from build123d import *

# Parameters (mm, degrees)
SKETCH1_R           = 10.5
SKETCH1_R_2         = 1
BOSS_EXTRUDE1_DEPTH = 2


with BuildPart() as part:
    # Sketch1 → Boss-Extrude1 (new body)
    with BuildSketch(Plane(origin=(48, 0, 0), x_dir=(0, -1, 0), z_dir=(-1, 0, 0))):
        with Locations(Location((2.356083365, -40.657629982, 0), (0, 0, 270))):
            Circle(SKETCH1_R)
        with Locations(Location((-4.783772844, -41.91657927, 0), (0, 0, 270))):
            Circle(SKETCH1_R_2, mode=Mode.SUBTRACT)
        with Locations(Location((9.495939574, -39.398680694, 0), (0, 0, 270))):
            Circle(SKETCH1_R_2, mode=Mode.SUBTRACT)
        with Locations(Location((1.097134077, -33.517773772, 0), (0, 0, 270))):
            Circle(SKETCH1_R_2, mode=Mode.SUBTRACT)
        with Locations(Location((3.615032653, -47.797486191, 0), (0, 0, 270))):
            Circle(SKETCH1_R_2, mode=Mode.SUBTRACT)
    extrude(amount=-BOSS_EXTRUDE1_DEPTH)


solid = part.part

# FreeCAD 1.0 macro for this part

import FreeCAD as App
import Part
import Sketcher

V = App.Vector
Q = App.Units.Quantity

doc = App.newDocument("Part")
body = doc.addObject("PartDesign::Body", "Body")

# Sketch on YZ plane
sketch1 = body.newObject("Sketcher::SketchObject", "Sketch")
sketch1.AttachmentSupport = (doc.getObject("YZ_Plane"), [""])
sketch1.MapMode = "FlatFace"
sketch1.AttachmentOffset = App.Placement(V(0, 0, 48), App.Rotation())
sketch1.addGeometry([
    Part.Circle(V(-2.4, -40.7, 0), V(0, 0, 1), 10.5),  # 0
    Part.Circle(V(-1.1, -33.5, 0), V(0, 0, 1), 1),  # 1
    Part.Circle(V(4.8, -41.9, 0), V(0, 0, 1), 1),  # 2
    Part.Circle(V(-9.5, -39.4, 0), V(0, 0, 1), 1),  # 3
    Part.Circle(V(-3.6, -47.8, 0), V(0, 0, 1), 1),  # 4
], False)
sketch1.addConstraint([
    Sketcher.Constraint("Equal", 1, 2),
    Sketcher.Constraint("Equal", 2, 3),
    Sketcher.Constraint("Equal", 3, 4),
    Sketcher.Constraint("Diameter", 0, Q("21 mm")),
    Sketcher.Constraint("Diameter", 1, Q("2 mm")),
    Sketcher.Constraint("DistanceY", 2, 3, 3, 3, Q("2.517899 mm")),
    Sketcher.Constraint("DistanceX", 4, 3, 1, 3, Q("2.517899 mm")),
    Sketcher.Constraint("DistanceY", 0, 3, -1, 1, Q("40.65763 mm")),
    Sketcher.Constraint("DistanceY", 2, 3, -1, 1, Q("41.916579 mm")),
    Sketcher.Constraint("DistanceX", 3, 3, -1, 1, Q("9.49594 mm")),
    Sketcher.Constraint("DistanceX", 0, 3, 1, 3, Q("1.258949 mm")),
    Sketcher.Constraint("DistanceX", 0, 3, -1, 1, Q("2.356083 mm")),
    Sketcher.Constraint("DistanceY", 1, 3, -1, 1, Q("33.517774 mm")),
    Sketcher.Constraint("DistanceX", -1, 1, 2, 3, Q("4.783773 mm")),
    Sketcher.Constraint("DistanceY", 4, 3, -1, 1, Q("47.797486 mm")),
])
pad1 = body.newObject("PartDesign::Pad", "Pad")
pad1.Profile = sketch1
pad1.Length = 2

doc.recompute()
